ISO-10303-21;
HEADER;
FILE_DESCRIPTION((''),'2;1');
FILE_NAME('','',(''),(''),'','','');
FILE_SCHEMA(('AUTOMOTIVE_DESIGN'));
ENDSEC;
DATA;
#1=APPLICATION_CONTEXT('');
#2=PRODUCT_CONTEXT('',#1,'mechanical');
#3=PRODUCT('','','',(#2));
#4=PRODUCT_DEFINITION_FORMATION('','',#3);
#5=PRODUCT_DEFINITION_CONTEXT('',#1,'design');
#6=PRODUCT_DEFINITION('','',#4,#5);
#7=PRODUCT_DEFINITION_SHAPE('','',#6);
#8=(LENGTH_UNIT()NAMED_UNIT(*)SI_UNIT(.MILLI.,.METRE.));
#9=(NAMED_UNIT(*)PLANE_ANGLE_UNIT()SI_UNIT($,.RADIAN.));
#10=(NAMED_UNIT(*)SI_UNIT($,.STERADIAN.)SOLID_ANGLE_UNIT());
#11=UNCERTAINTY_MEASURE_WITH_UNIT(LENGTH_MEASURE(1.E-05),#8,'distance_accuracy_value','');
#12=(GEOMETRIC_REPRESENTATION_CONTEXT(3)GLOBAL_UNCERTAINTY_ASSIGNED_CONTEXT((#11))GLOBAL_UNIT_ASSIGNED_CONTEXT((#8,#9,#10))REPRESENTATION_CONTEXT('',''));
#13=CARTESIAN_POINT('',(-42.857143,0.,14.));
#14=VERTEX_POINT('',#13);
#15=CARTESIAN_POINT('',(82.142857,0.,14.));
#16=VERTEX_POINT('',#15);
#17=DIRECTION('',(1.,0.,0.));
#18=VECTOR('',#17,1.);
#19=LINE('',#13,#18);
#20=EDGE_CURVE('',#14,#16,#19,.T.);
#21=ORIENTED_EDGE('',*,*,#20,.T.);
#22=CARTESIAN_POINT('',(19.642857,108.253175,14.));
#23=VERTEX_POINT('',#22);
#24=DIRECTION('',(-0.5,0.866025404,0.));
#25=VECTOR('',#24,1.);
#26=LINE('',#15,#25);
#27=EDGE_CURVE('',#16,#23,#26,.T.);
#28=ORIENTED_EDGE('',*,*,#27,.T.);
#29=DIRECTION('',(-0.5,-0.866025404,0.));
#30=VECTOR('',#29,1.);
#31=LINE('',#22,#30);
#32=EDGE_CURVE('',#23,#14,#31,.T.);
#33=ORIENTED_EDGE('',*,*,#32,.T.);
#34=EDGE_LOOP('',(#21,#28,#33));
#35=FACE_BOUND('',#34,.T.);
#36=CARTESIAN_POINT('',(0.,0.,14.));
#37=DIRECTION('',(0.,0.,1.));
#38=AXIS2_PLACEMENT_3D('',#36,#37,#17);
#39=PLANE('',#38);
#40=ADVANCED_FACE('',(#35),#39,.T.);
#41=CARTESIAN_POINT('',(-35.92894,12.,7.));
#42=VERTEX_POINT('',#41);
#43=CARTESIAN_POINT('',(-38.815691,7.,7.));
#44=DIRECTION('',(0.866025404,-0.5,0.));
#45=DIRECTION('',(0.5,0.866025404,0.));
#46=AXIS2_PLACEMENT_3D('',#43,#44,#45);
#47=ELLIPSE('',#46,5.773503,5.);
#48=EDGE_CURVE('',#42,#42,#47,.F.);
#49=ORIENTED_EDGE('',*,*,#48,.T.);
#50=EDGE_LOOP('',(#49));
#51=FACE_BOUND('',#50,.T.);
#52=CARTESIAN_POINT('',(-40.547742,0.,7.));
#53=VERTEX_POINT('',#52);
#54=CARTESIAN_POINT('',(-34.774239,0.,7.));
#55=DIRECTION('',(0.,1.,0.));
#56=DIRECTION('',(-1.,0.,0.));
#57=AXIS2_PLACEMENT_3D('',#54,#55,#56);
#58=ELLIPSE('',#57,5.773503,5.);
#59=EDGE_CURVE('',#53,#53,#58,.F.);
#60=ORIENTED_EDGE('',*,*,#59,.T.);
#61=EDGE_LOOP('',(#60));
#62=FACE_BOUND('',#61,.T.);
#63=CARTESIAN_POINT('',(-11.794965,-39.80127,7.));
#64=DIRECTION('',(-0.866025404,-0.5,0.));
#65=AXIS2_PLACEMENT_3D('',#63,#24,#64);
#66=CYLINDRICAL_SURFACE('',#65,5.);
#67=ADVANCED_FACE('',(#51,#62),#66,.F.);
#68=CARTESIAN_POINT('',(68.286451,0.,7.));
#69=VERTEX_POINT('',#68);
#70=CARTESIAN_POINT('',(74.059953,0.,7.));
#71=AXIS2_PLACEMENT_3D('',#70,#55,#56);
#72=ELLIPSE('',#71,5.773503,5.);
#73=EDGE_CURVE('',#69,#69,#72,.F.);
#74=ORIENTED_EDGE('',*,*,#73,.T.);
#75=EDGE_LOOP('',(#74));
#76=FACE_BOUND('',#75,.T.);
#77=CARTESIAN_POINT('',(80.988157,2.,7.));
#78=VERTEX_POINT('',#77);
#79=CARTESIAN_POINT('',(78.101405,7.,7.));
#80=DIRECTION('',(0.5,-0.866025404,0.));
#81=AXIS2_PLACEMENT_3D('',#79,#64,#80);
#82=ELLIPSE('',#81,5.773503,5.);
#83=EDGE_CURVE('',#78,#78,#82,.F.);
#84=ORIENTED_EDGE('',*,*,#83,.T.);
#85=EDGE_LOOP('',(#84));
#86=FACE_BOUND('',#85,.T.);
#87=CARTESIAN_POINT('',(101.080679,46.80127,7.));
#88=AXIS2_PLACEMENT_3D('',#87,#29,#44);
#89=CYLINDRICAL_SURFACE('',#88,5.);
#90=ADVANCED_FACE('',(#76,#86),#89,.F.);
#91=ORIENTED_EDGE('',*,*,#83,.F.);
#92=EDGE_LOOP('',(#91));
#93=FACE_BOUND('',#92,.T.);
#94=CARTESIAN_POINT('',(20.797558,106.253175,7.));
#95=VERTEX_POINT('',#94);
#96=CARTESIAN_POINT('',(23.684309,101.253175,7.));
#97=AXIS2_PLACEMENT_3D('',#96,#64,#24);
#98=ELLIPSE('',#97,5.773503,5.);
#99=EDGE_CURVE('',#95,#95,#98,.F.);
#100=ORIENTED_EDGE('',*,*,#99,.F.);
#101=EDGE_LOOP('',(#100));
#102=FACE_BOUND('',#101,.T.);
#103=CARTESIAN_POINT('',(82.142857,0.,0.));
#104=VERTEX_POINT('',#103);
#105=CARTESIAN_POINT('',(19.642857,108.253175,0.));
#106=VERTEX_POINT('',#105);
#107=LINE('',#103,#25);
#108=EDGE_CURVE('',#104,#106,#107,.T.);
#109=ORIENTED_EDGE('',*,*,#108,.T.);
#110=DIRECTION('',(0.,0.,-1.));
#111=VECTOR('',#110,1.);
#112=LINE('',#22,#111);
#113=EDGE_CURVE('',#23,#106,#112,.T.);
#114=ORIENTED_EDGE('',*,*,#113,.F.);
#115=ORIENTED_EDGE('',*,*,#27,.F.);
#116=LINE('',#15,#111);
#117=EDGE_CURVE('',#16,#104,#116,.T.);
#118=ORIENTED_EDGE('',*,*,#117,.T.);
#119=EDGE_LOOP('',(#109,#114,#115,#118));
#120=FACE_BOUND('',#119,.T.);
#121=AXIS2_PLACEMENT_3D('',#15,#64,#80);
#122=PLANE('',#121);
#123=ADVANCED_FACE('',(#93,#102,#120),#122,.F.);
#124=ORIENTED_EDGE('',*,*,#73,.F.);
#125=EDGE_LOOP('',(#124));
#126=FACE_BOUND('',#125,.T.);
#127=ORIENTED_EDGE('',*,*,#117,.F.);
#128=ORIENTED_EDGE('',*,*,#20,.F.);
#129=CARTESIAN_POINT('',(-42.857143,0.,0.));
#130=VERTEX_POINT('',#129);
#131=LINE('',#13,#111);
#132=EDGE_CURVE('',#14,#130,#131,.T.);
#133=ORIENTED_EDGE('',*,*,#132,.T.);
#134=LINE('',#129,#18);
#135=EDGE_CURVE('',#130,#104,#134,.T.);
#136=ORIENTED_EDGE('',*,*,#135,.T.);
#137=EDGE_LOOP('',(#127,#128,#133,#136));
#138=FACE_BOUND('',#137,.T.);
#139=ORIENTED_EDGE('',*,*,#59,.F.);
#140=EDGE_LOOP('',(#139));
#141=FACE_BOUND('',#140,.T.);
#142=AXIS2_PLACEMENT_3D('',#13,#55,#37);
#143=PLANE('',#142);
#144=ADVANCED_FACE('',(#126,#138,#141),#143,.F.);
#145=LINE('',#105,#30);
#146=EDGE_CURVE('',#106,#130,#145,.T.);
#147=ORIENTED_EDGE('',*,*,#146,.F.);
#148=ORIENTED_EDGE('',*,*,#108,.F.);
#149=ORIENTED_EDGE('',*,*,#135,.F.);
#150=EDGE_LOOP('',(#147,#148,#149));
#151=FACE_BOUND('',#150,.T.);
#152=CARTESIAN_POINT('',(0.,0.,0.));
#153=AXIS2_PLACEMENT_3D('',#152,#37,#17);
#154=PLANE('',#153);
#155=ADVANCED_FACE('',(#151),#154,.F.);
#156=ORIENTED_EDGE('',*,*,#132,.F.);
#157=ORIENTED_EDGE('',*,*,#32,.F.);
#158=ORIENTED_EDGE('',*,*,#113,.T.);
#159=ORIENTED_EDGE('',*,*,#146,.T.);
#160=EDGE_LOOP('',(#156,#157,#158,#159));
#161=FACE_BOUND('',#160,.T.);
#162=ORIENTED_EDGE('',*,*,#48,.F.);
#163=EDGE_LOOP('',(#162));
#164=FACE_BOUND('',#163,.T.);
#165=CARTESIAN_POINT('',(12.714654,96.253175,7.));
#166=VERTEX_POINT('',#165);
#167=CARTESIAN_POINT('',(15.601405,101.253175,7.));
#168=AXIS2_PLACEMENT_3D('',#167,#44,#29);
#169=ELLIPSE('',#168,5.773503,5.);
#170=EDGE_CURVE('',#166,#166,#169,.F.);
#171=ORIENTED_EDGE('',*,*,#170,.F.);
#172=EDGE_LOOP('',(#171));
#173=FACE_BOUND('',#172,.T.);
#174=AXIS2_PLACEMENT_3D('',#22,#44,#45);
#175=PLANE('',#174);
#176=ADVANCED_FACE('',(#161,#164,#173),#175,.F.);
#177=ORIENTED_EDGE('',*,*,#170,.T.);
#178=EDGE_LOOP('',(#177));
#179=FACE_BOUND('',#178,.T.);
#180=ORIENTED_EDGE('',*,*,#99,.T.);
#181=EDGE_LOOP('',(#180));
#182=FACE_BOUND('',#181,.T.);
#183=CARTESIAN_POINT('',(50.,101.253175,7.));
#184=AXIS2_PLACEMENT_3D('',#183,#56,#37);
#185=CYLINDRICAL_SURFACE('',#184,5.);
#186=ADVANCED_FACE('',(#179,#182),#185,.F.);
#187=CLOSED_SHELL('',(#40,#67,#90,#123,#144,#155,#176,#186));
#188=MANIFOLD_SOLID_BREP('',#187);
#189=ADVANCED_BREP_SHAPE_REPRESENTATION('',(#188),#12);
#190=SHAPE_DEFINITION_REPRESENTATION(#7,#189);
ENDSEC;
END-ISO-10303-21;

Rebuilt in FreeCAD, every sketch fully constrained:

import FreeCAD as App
import Part
import Sketcher

V = App.Vector
Q = App.Units.Quantity

doc = App.newDocument("Part")
body = doc.addObject("PartDesign::Body", "Body")

# Sketch on XY plane
sketch1 = doc.addObject("Sketcher::SketchObject", "Sketch")
body.addObject(sketch1)
sketch1.AttachmentSupport = (doc.XY_Plane, [""])
sketch1.MapMode = "FlatFace"
sketch1.addGeometry([
    Part.LineSegment(V(-43, 0, 0), V(82, 0, 0)),
    Part.LineSegment(V(82, 0, 0), V(20, 108, 0)),
    Part.LineSegment(V(20, 108, 0), V(-43, 0, 0)),
], False)
sketch1.addConstraint([
    Sketcher.Constraint("Coincident", 0, 2, 1, 1),
    Sketcher.Constraint("Coincident", 1, 2, 2, 1),
    Sketcher.Constraint("Coincident", 2, 2, 0, 1),
    Sketcher.Constraint("Horizontal", 0),
    Sketcher.Constraint("PointOnObject", 0, 2, -1),
    Sketcher.Constraint("Equal", 1, 2),
    Sketcher.Constraint("DistanceX", 0, 1, 0, 2, Q("125 mm")),
    Sketcher.Constraint("Angle", 1, Q("120 deg")),
    Sketcher.Constraint("DistanceX", -1, 1, 0, 2, Q("82.142857 mm")),
])
pad1 = doc.addObject("PartDesign::Pad", "Pad")
body.addObject(pad1)
pad1.Profile = sketch1
pad1.Length = 14

# Sketch on YZ plane
sketch2 = doc.addObject("Sketcher::SketchObject", "Sketch001")
body.addObject(sketch2)
sketch2.AttachmentSupport = (doc.YZ_Plane, [""])
sketch2.MapMode = "FlatFace"
sketch2.addGeometry(Part.Circle(V(101, 7, 0), V(0, 0, 1), 5), False)
sketch2.addConstraint([
    Sketcher.Constraint("Diameter", 0, Q("10 mm")),
    Sketcher.Constraint("DistanceY", -1, 1, 0, 3, Q("7 mm")),
    Sketcher.Constraint("DistanceX", -1, 1, 0, 3, Q("101.253175 mm")),
])
pocket1 = doc.addObject("PartDesign::Pocket", "Pocket")
body.addObject(pocket1)
pocket1.Profile = sketch2
pocket1.Length = 50
pocket1.Reversed = True

# Sketch on an angled plane
sketch3 = doc.addObject("Sketcher::SketchObject", "Sketch002")
body.addObject(sketch3)
sketch3.Placement = App.Placement(V(-10.714286, 18.557687, 0), App.Rotation(V(-0.866025404, -0.5, 0), V(0, 0, -1), V(0.5, -0.866025404, 0), "ZXY"))
sketch3.addGeometry(Part.Circle(V(30, -7, 0), V(0, 0, 1), 5), False)
sketch3.addConstraint([
    Sketcher.Constraint("Diameter", 0, Q("10 mm")),
    Sketcher.Constraint("DistanceY", 0, 3, -1, 1, Q("7 mm")),
    Sketcher.Constraint("DistanceX", -1, 1, 0, 3, Q("30.115374 mm")),
])
pocket2 = doc.addObject("PartDesign::Pocket", "Pocket001")
body.addObject(pocket2)
pocket2.Profile = sketch3
pocket2.Type = "ThroughAll"
pocket2.Midplane = True

# Sketch on an angled plane
sketch4 = doc.addObject("Sketcher::SketchObject", "Sketch003")
body.addObject(sketch4)
sketch4.Placement = App.Placement(V(20.535714, 35.568901, 0), App.Rotation(V(0.866025404, -0.5, 0), V(0, 0, -1), V(0.5, 0.866025404, 0), "ZXY"))
sketch4.addGeometry(Part.Circle(V(64, -7, 0), V(0, 0, 1), 5), False)
sketch4.addConstraint([
    Sketcher.Constraint("Diameter", 0, Q("10 mm")),
    Sketcher.Constraint("DistanceY", 0, 3, -1, 1, Q("7 mm")),
    Sketcher.Constraint("DistanceX", -1, 1, 0, 3, Q("64.137801 mm")),
])
pocket3 = doc.addObject("PartDesign::Pocket", "Pocket002")
body.addObject(pocket3)
pocket3.Profile = sketch4
pocket3.Type = "ThroughAll"
pocket3.Midplane = True

doc.recompute()
